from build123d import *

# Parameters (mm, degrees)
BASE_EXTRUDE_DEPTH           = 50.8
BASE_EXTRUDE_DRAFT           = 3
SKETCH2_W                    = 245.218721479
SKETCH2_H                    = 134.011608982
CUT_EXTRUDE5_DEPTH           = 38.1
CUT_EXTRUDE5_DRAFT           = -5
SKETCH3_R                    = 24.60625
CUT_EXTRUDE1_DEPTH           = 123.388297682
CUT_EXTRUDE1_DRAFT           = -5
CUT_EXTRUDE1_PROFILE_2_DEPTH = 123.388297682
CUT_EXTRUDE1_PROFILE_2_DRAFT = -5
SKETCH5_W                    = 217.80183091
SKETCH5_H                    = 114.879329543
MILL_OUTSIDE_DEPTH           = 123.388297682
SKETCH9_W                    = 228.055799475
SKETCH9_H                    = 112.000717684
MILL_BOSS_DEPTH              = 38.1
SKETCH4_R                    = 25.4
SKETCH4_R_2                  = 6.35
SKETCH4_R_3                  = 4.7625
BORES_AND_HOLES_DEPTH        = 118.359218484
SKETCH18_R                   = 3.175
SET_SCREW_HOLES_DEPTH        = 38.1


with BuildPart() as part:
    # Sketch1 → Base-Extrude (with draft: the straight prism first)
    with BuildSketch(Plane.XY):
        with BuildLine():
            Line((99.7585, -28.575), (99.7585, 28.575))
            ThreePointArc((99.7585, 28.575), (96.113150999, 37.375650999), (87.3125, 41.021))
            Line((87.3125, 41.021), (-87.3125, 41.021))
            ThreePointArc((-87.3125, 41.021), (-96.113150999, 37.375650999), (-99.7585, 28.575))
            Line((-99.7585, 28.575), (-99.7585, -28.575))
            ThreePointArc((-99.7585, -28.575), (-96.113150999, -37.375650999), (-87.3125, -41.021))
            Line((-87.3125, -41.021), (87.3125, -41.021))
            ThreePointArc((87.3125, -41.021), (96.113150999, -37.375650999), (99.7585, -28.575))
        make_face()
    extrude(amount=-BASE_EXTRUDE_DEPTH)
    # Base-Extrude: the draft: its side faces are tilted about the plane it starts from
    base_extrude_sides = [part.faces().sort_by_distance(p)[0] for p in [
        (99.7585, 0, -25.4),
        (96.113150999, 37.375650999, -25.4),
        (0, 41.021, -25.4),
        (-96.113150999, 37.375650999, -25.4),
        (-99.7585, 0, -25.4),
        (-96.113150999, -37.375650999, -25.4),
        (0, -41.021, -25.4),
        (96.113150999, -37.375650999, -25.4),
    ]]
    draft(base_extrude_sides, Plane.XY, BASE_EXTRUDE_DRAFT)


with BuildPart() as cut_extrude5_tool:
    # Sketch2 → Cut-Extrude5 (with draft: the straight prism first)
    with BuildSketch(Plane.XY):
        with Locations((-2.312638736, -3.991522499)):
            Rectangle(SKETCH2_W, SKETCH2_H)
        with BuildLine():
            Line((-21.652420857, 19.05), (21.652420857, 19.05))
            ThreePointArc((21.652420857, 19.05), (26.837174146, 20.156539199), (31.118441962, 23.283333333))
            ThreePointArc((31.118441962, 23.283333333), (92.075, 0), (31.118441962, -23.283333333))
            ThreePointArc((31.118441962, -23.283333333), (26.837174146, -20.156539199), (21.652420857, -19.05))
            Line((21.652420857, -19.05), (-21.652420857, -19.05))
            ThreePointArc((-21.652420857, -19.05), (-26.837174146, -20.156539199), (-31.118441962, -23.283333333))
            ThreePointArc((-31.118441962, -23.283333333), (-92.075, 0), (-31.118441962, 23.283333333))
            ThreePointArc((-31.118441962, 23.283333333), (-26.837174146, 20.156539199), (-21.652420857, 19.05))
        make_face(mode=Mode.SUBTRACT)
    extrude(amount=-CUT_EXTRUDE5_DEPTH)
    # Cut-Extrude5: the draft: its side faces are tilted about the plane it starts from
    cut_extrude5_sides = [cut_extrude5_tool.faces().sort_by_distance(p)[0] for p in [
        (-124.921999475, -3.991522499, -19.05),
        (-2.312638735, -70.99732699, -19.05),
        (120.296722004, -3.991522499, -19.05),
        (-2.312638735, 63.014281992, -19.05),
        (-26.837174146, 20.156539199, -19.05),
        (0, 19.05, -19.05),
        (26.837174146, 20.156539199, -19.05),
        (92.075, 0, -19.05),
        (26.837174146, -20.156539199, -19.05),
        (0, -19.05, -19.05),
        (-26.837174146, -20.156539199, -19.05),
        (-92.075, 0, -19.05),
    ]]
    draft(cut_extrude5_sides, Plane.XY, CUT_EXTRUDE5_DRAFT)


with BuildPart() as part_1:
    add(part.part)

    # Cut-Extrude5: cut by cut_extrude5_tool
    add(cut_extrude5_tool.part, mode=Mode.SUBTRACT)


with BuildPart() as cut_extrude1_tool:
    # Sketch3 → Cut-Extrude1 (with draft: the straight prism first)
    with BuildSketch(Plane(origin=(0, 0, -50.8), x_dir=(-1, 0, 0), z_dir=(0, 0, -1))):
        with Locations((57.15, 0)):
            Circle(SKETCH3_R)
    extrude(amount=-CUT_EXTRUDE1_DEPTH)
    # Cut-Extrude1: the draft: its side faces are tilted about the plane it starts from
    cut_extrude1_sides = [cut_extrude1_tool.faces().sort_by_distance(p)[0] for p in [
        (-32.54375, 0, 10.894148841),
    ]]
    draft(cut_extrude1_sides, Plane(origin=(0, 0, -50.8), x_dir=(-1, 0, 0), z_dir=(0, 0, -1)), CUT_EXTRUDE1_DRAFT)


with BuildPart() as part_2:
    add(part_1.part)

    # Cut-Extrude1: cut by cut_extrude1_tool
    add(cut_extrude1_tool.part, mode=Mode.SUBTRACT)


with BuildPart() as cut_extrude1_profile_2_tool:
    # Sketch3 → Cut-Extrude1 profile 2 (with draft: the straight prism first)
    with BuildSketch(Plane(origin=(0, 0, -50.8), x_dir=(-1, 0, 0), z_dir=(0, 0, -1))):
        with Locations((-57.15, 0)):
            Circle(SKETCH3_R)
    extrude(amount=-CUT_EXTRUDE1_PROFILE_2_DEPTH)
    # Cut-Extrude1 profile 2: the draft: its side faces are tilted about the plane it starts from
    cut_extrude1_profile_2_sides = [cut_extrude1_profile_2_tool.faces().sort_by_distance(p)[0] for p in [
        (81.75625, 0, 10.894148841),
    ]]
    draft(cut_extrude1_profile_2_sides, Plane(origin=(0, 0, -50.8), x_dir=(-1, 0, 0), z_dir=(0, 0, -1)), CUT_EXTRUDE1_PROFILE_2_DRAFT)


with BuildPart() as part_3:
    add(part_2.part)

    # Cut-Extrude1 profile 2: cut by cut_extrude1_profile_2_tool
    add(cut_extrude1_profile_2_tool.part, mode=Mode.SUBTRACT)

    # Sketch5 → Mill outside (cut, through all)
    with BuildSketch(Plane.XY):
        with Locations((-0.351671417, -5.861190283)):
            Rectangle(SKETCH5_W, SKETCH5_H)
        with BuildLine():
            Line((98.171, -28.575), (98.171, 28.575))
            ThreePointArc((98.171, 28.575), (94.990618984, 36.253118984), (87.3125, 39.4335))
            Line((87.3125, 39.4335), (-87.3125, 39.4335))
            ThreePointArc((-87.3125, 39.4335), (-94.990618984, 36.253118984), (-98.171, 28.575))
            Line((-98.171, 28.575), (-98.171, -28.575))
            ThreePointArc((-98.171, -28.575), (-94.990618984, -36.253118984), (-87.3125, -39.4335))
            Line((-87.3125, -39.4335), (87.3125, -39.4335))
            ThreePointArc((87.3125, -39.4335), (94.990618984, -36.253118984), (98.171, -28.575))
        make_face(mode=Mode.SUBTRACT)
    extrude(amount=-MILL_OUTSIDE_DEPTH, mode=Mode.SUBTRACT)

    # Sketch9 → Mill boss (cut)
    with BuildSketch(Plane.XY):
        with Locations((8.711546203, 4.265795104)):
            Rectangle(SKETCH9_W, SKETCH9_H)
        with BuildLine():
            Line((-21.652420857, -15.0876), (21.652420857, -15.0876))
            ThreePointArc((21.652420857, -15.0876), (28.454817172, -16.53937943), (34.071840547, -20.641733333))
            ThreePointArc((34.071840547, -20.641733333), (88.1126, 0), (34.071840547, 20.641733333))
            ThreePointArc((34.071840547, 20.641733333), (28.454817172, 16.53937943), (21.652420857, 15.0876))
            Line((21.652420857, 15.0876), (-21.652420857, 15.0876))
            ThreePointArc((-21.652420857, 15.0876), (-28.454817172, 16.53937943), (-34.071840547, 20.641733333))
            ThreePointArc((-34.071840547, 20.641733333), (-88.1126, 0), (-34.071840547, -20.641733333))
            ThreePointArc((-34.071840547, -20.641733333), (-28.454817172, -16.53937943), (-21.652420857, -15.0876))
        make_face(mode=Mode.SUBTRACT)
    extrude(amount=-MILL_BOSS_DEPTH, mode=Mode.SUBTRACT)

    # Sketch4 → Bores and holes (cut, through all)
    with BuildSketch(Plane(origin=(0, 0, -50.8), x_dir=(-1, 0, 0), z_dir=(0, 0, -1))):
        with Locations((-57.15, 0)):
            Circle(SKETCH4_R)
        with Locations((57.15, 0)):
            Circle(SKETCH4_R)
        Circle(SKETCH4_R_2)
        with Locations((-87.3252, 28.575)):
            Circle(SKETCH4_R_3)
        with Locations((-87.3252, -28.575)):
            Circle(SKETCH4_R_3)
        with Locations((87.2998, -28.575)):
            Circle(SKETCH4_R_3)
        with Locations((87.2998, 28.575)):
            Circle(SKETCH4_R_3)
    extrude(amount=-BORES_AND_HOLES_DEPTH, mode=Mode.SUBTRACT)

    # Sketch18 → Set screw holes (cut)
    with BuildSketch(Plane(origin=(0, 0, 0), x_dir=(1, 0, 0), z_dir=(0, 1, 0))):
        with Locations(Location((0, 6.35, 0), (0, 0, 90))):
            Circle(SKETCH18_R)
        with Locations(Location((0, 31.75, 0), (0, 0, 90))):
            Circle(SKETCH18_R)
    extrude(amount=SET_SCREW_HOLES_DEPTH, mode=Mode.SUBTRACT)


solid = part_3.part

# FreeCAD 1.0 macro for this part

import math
import FreeCAD as App
import Part
import Sketcher
Q = App.Units.Quantity


def faces_at(feature, points):
    """Names of the faces that lie closest to the given points."""
    faces = feature.Shape.Faces
    near = lambda p: min(range(len(faces)), key=lambda i: faces[i].distToShape(Part.Vertex(*p))[0])
    return sorted({f"Face{near(p) + 1}" for p in points})


def add_polygon(sketch, points):
    """Adds a closed chain of lines whose ends are joined by coincident constraints."""
    first, n = sketch.GeometryCount, len(points)
    for a, b in zip(points, points[1:] + points[:1]):
        sketch.addGeometry(Part.LineSegment(App.Vector(*a, 0), App.Vector(*b, 0)), False)
    for i in range(n):
        sketch.addConstraint(Sketcher.Constraint("Coincident", first + i, 2, first + (i + 1) % n, 1))

doc = App.newDocument("Part")
params = doc.addObject("Spreadsheet::Sheet", "Params")
for row, (alias, value) in enumerate([
    ("sketch1_radius", "0.49 in"),
    ("sketch1_height", "2.25 in"),
    ("sketch1_width", "6.875 in"),
    ("pad1_length", "2 in"),
    ("draft_angle", "3 deg"),
    ("sketch2_radius", "0.5 in"),
    ("sketch2_radius2", "1.375 in"),
    ("pad2_length", "1.5 in"),
    ("draft2_angle", "5 deg"),
    ("sketch3_diameter", "1.9375 in"),
    ("pad3_length", "123.388298 mm"),
    ("draft3_angle", "5 deg"),
    ("sketch4_diameter", "1.9375 in"),
    ("pad4_length", "123.388298 mm"),
    ("draft4_angle", "5 deg"),
    ("sketch5_height", "2.25 in"),
    ("sketch5_width", "6.875 in"),
    ("sketch6_radius", "0.656 in"),
    ("sketch6_radius2", "1.219 in"),
    ("pocket2_length", "1.5 in"),
    ("sketch7_diameter", "2 in"),
    ("sketch7_diameter2", "0.5 in"),
    ("sketch7_diameter3", "0.375 in"),
    ("sketch8_diameter", "0.25 in"),
    ("pocket4_length", "1.5 in"),
], start=1):
    params.set(f"A{row}", alias)
    params.set(f"B{row}", "=" + value)
    params.setAlias(f"B{row}", alias)

body = doc.addObject("PartDesign::Body", "Body")

sketch1 = body.newObject("Sketcher::SketchObject", "Sketch")
sketch1.AttachmentSupport = (doc.getObject("XY_Plane"), [""])
sketch1.MapMode = "FlatFace"
sketch1.addGeometry([
    Part.LineSegment(App.Vector(100, -29, 0), App.Vector(100, 29, 0)),
    Part.ArcOfCircle(Part.Circle(App.Vector(87, 29, 0), App.Vector(0, 0, 1), 12), math.radians(0), math.radians(90)),
    Part.LineSegment(App.Vector(87, 41, 0), App.Vector(-87, 41, 0)),
    Part.ArcOfCircle(Part.Circle(App.Vector(-87, 29, 0), App.Vector(0, 0, 1), 12), math.radians(90), math.radians(180)),
    Part.LineSegment(App.Vector(-100, 29, 0), App.Vector(-100, -29, 0)),
    Part.ArcOfCircle(Part.Circle(App.Vector(-87, -29, 0), App.Vector(0, 0, 1), 12), math.radians(180), math.radians(270)),
    Part.LineSegment(App.Vector(-87, -41, 0), App.Vector(87, -41, 0)),
    Part.ArcOfCircle(Part.Circle(App.Vector(87, -29, 0), App.Vector(0, 0, 1), 12), math.radians(-90), math.radians(0)),
], False)
sketch1.addConstraint([
    Sketcher.Constraint("Tangent", 0, 2, 1, 1),
    Sketcher.Constraint("Tangent", 1, 2, 2, 1),
    Sketcher.Constraint("Tangent", 2, 2, 3, 1),
    Sketcher.Constraint("Tangent", 3, 2, 4, 1),
    Sketcher.Constraint("Tangent", 4, 2, 5, 1),
    Sketcher.Constraint("Tangent", 5, 2, 6, 1),
    Sketcher.Constraint("Tangent", 6, 2, 7, 1),
    Sketcher.Constraint("Tangent", 7, 2, 0, 1),
    Sketcher.Constraint("Vertical", 0),
    Sketcher.Constraint("Horizontal", 2),
    Sketcher.Constraint("Vertical", 4),
    Sketcher.Constraint("Horizontal", 6),
    Sketcher.Constraint("Equal", 1, 3),
    Sketcher.Constraint("Equal", 3, 5),
    Sketcher.Constraint("Equal", 5, 7),
    Sketcher.Constraint("Symmetric", 1, 3, 5, 3, -1, 1),
    Sketcher.Constraint("Radius", 1, Q("0.49 in")),
    Sketcher.Constraint("DistanceY", 0, 1, 0, 2, Q("2.25 in")),
    Sketcher.Constraint("DistanceX", 2, 2, 2, 1, Q("6.875 in")),
])
sketch1.setExpression("Constraints[16]", "Params.sketch1_radius")
sketch1.setExpression("Constraints[17]", "Params.sketch1_height")
sketch1.setExpression("Constraints[18]", "Params.sketch1_width")
pad1 = body.newObject("PartDesign::Pad", "Pad")
pad1.Profile = sketch1
pad1.setExpression("Length", "Params.pad1_length")
pad1.Reversed = True
doc.recompute()

draft = body.newObject("PartDesign::Draft", "Draft")
draft.Base = (pad1, faces_at(pad1, [
    (99.758, 0, -25.4),
    (96.113, 37.376, -25.4),
    (0, 41.021, -25.4),
    (-96.113, 37.376, -25.4),
    (-99.758, 0, -25.4),
    (-96.113, -37.376, -25.4),
    (0, -41.021, -25.4),
    (96.113, -37.376, -25.4),
]))
draft.NeutralPlane = (doc.getObject("XY_Plane"), [""])
draft.setExpression("Angle", "Params.draft_angle")
draft.Reversed = False
body2 = doc.addObject("PartDesign::Body", "Body001")

sketch2 = body2.newObject("Sketcher::SketchObject", "Sketch001")
sketch2.AttachmentSupport = (doc.getObject("XY_Plane001"), [""])
sketch2.MapMode = "FlatFace"
add_polygon(sketch2, [(-125, 63), (-125, -71), (120, -71), (120, 63)])
sketch2.addGeometry(Part.ArcOfCircle(Part.Circle(App.Vector(-22, 32, 0), App.Vector(0, 0, 1), 13), math.radians(-138), math.radians(-90)), False)
sketch2.addGeometry(Part.LineSegment(App.Vector(-22, 19, 0), App.Vector(22, 19, 0)), False)
sketch2.addGeometry(Part.ArcOfCircle(Part.Circle(App.Vector(22, 32, 0), App.Vector(0, 0, 1), 13), math.radians(-90), math.radians(-42)), False)
sketch2.addGeometry(Part.ArcOfCircle(Part.Circle(App.Vector(57, 0, 0), App.Vector(0, 0, 1), 35), math.radians(-138), math.radians(138)), False)
sketch2.addGeometry(Part.ArcOfCircle(Part.Circle(App.Vector(22, -32, 0), App.Vector(0, 0, 1), 13), math.radians(42), math.radians(90)), False)
sketch2.addGeometry(Part.LineSegment(App.Vector(22, -19, 0), App.Vector(-22, -19, 0)), False)
sketch2.addGeometry(Part.ArcOfCircle(Part.Circle(App.Vector(-22, -32, 0), App.Vector(0, 0, 1), 13), math.radians(90), math.radians(138)), False)
sketch2.addGeometry(Part.ArcOfCircle(Part.Circle(App.Vector(-57, 0, 0), App.Vector(0, 0, 1), 35), math.radians(42), math.radians(318)), False)
sketch2.addConstraint([
    Sketcher.Constraint("Tangent", 4, 2, 5, 1),
    Sketcher.Constraint("Tangent", 5, 2, 6, 1),
    Sketcher.Constraint("Tangent", 6, 2, 7, 2),
    Sketcher.Constraint("Tangent", 7, 1, 8, 1),
    Sketcher.Constraint("Tangent", 8, 2, 9, 1),
    Sketcher.Constraint("Tangent", 9, 2, 10, 1),
    Sketcher.Constraint("Tangent", 10, 2, 11, 2),
    Sketcher.Constraint("Tangent", 11, 1, 4, 1),
    Sketcher.Constraint("Vertical", 0),
    Sketcher.Constraint("Horizontal", 1),
    Sketcher.Constraint("Vertical", 2),
    Sketcher.Constraint("Horizontal", 3),
    Sketcher.Constraint("Horizontal", 5),
    Sketcher.Constraint("Horizontal", 9),
    Sketcher.Constraint("Equal", 4, 6),
    Sketcher.Constraint("Equal", 6, 8),
    Sketcher.Constraint("Equal", 8, 10),
    Sketcher.Constraint("Equal", 7, 11),
    Sketcher.Constraint("Symmetric", 4, 3, 8, 3, -1, 1),
    Sketcher.Constraint("Symmetric", 7, 3, 11, 3, -2),
    Sketcher.Constraint("Radius", 4, Q("0.5 in")),
    Sketcher.Constraint("Radius", 7, Q("1.375 in")),
    Sketcher.Constraint("DistanceY", 10, 3, 4, 2, Q("2 in")),
    Sketcher.Constraint("DistanceX", 11, 3, 7, 3, Q("4.5 in")),
    Sketcher.Constraint("DistanceX", 1, 1, 1, 2, Q("245.218721 mm")),
    Sketcher.Constraint("DistanceY", 0, 2, 0, 1, Q("134.011609 mm")),
    Sketcher.Constraint("DistanceX", 0, 2, -1, 1, Q("124.921999 mm")),
    Sketcher.Constraint("DistanceY", -1, 1, 2, 2, Q("63.014282 mm")),
])
sketch2.setExpression("Constraints[24]", "Params.sketch2_radius")
sketch2.setExpression("Constraints[25]", "Params.sketch2_radius2")
pad2 = body2.newObject("PartDesign::Pad", "Pad001")
pad2.Profile = sketch2
pad2.setExpression("Length", "Params.pad2_length")
pad2.Reversed = True
doc.recompute()

draft2 = body2.newObject("PartDesign::Draft", "Draft001")
draft2.Base = (pad2, faces_at(pad2, [
    (-124.922, -3.992, -19.05),
    (-2.313, -70.997, -19.05),
    (120.297, -3.992, -19.05),
    (-2.313, 63.014, -19.05),
    (-26.837, 20.157, -19.05),
    (0, 19.05, -19.05),
    (26.837, 20.157, -19.05),
    (92.075, 0, -19.05),
    (26.837, -20.157, -19.05),
    (0, -19.05, -19.05),
    (-26.837, -20.157, -19.05),
    (-92.075, 0, -19.05),
]))
draft2.NeutralPlane = (doc.getObject("XY_Plane001"), [""])
draft2.setExpression("Angle", "Params.draft2_angle")
draft2.Reversed = True
doc.recompute()

boolean = body.newObject("PartDesign::Boolean", "Boolean")
boolean.Type = "Cut"
boolean.addObjects([body2])
body3 = doc.addObject("PartDesign::Body", "Body002")

sketch3 = body3.newObject("Sketcher::SketchObject", "Sketch002")
sketch3.AttachmentSupport = (doc.getObject("XY_Plane002"), [""])
sketch3.MapMode = "FlatFace"
sketch3.AttachmentOffset = App.Placement(App.Vector(0, 0, -2 * 25.4), App.Rotation())
sketch3.addGeometry(Part.Circle(App.Vector(-57, 0, 0), App.Vector(0, 0, 1), 25), False)
sketch3.addConstraint([
    Sketcher.Constraint("PointOnObject", 0, 3, -1),
    Sketcher.Constraint("Diameter", 0, Q("1.9375 in")),
    Sketcher.Constraint("DistanceX", 0, 3, -1, 1, Q("2.25 in")),
])
sketch3.setExpression("Constraints[1]", "Params.sketch3_diameter")
pad3 = body3.newObject("PartDesign::Pad", "Pad002")
pad3.Profile = sketch3
pad3.setExpression("Length", "Params.pad3_length")
doc.recompute()

datumplane = body3.newObject("PartDesign::Plane", "DatumPlane")
datumplane.AttachmentSupport = (doc.getObject("XY_Plane002"), [""])
datumplane.MapMode = "FlatFace"
datumplane.AttachmentOffset = App.Placement(App.Vector(0, 0, -2 * 25.4), App.Rotation())
draft3 = body3.newObject("PartDesign::Draft", "Draft002")
draft3.Base = (pad3, faces_at(pad3, [(-32.544, 0, 10.894)]))
draft3.NeutralPlane = (datumplane, [""])
draft3.setExpression("Angle", "Params.draft3_angle")
draft3.Reversed = False
doc.recompute()

boolean2 = body.newObject("PartDesign::Boolean", "Boolean001")
boolean2.Type = "Cut"
boolean2.addObjects([body3])
body4 = doc.addObject("PartDesign::Body", "Body003")

sketch4 = body4.newObject("Sketcher::SketchObject", "Sketch003")
sketch4.AttachmentSupport = (doc.getObject("XY_Plane003"), [""])
sketch4.MapMode = "FlatFace"
sketch4.AttachmentOffset = App.Placement(App.Vector(0, 0, -2 * 25.4), App.Rotation())
sketch4.addGeometry(Part.Circle(App.Vector(57, 0, 0), App.Vector(0, 0, 1), 25), False)
sketch4.addConstraint([
    Sketcher.Constraint("PointOnObject", 0, 3, -1),
    Sketcher.Constraint("Diameter", 0, Q("1.9375 in")),
    Sketcher.Constraint("DistanceX", -1, 1, 0, 3, Q("2.25 in")),
])
sketch4.setExpression("Constraints[1]", "Params.sketch4_diameter")
pad4 = body4.newObject("PartDesign::Pad", "Pad003")
pad4.Profile = sketch4
pad4.setExpression("Length", "Params.pad4_length")
doc.recompute()

datumplane2 = body4.newObject("PartDesign::Plane", "DatumPlane001")
datumplane2.AttachmentSupport = (doc.getObject("XY_Plane003"), [""])
datumplane2.MapMode = "FlatFace"
datumplane2.AttachmentOffset = App.Placement(App.Vector(0, 0, -2 * 25.4), App.Rotation())
draft4 = body4.newObject("PartDesign::Draft", "Draft003")
draft4.Base = (pad4, faces_at(pad4, [(81.756, 0, 10.894)]))
draft4.NeutralPlane = (datumplane2, [""])
draft4.setExpression("Angle", "Params.draft4_angle")
draft4.Reversed = False
doc.recompute()

boolean3 = body.newObject("PartDesign::Boolean", "Boolean002")
boolean3.Type = "Cut"
boolean3.addObjects([body4])

sketch5 = body.newObject("Sketcher::SketchObject", "Sketch004")
sketch5.AttachmentSupport = (doc.getObject("XY_Plane"), [""])
sketch5.MapMode = "FlatFace"
add_polygon(sketch5, [(-109, 52), (-109, -63), (109, -63), (109, 52)])
sketch5.addGeometry(Part.LineSegment(App.Vector(98, 29, 0), App.Vector(98, -29, 0)), False)
sketch5.addGeometry(Part.ArcOfCircle(Part.Circle(App.Vector(87, -29, 0), App.Vector(0, 0, 1), 11), math.radians(-90), math.radians(0)), False)
sketch5.addGeometry(Part.LineSegment(App.Vector(87, -39, 0), App.Vector(-87, -39, 0)), False)
sketch5.addGeometry(Part.ArcOfCircle(Part.Circle(App.Vector(-87, -29, 0), App.Vector(0, 0, 1), 11), math.radians(180), math.radians(270)), False)
sketch5.addGeometry(Part.LineSegment(App.Vector(-98, -29, 0), App.Vector(-98, 29, 0)), False)
sketch5.addGeometry(Part.ArcOfCircle(Part.Circle(App.Vector(-87, 29, 0), App.Vector(0, 0, 1), 11), math.radians(90), math.radians(180)), False)
sketch5.addGeometry(Part.LineSegment(App.Vector(-87, 39, 0), App.Vector(87, 39, 0)), False)
sketch5.addGeometry(Part.ArcOfCircle(Part.Circle(App.Vector(87, 29, 0), App.Vector(0, 0, 1), 11), math.radians(0), math.radians(90)), False)
sketch5.addConstraint([
    Sketcher.Constraint("Tangent", 4, 2, 5, 2),
    Sketcher.Constraint("Tangent", 5, 1, 6, 1),
    Sketcher.Constraint("Tangent", 6, 2, 7, 2),
    Sketcher.Constraint("Tangent", 7, 1, 8, 1),
    Sketcher.Constraint("Tangent", 8, 2, 9, 2),
    Sketcher.Constraint("Tangent", 9, 1, 10, 1),
    Sketcher.Constraint("Tangent", 10, 2, 11, 2),
    Sketcher.Constraint("Tangent", 11, 1, 4, 1),
    Sketcher.Constraint("Vertical", 0),
    Sketcher.Constraint("Horizontal", 1),
    Sketcher.Constraint("Vertical", 2),
    Sketcher.Constraint("Horizontal", 3),
    Sketcher.Constraint("Vertical", 4),
    Sketcher.Constraint("Horizontal", 6),
    Sketcher.Constraint("Vertical", 8),
    Sketcher.Constraint("Horizontal", 10),
    Sketcher.Constraint("Equal", 5, 7),
    Sketcher.Constraint("Equal", 7, 9),
    Sketcher.Constraint("Equal", 9, 11),
    Sketcher.Constraint("Symmetric", 5, 3, 9, 3, -1, 1),
    Sketcher.Constraint("DistanceY", 4, 2, 4, 1, Q("2.25 in")),
    Sketcher.Constraint("Radius", 5, Q("0.4275 in")),
    Sketcher.Constraint("DistanceX", 6, 2, 6, 1, Q("6.875 in")),
    Sketcher.Constraint("DistanceX", 1, 1, 1, 2, Q("217.801831 mm")),
    Sketcher.Constraint("DistanceY", 0, 2, 0, 1, Q("114.87933 mm")),
    Sketcher.Constraint("DistanceX", 0, 2, -1, 1, Q("109.252587 mm")),
    Sketcher.Constraint("DistanceY", 0, 2, -1, 1, Q("63.300855 mm")),
])
sketch5.setExpression("Constraints[24]", "Params.sketch5_height")
sketch5.setExpression("Constraints[26]", "Params.sketch5_width")
pocket1 = body.newObject("PartDesign::Pocket", "Pocket")
pocket1.Profile = sketch5
pocket1.Type = "ThroughAll"

sketch6 = body.newObject("Sketcher::SketchObject", "Sketch005")
sketch6.AttachmentSupport = (doc.getObject("XY_Plane"), [""])
sketch6.MapMode = "FlatFace"
add_polygon(sketch6, [(-105, 60), (-105, -52), (123, -52), (123, 60)])
sketch6.addGeometry(Part.LineSegment(App.Vector(22, -15, 0), App.Vector(-22, -15, 0)), False)
sketch6.addGeometry(Part.ArcOfCircle(Part.Circle(App.Vector(-22, -32, 0), App.Vector(0, 0, 1), 17), math.radians(90), math.radians(138)), False)
sketch6.addGeometry(Part.ArcOfCircle(Part.Circle(App.Vector(-57, 0, 0), App.Vector(0, 0, 1), 31), math.radians(42), math.radians(318)), False)
sketch6.addGeometry(Part.ArcOfCircle(Part.Circle(App.Vector(-22, 32, 0), App.Vector(0, 0, 1), 17), math.radians(-138), math.radians(-90)), False)
sketch6.addGeometry(Part.LineSegment(App.Vector(-22, 15, 0), App.Vector(22, 15, 0)), False)
sketch6.addGeometry(Part.ArcOfCircle(Part.Circle(App.Vector(22, 32, 0), App.Vector(0, 0, 1), 17), math.radians(-90), math.radians(-42)), False)
sketch6.addGeometry(Part.ArcOfCircle(Part.Circle(App.Vector(57, 0, 0), App.Vector(0, 0, 1), 31), math.radians(-138), math.radians(138)), False)
sketch6.addGeometry(Part.ArcOfCircle(Part.Circle(App.Vector(22, -32, 0), App.Vector(0, 0, 1), 17), math.radians(42), math.radians(90)), False)
sketch6.addConstraint([
    Sketcher.Constraint("Tangent", 4, 2, 5, 1),
    Sketcher.Constraint("Tangent", 5, 2, 6, 2),
    Sketcher.Constraint("Tangent", 6, 1, 7, 1),
    Sketcher.Constraint("Tangent", 7, 2, 8, 1),
    Sketcher.Constraint("Tangent", 8, 2, 9, 1),
    Sketcher.Constraint("Tangent", 9, 2, 10, 2),
    Sketcher.Constraint("Tangent", 10, 1, 11, 1),
    Sketcher.Constraint("Tangent", 11, 2, 4, 1),
    Sketcher.Constraint("Vertical", 0),
    Sketcher.Constraint("Horizontal", 1),
    Sketcher.Constraint("Vertical", 2),
    Sketcher.Constraint("Horizontal", 3),
    Sketcher.Constraint("Horizontal", 4),
    Sketcher.Constraint("Horizontal", 8),
    Sketcher.Constraint("Equal", 5, 7),
    Sketcher.Constraint("Equal", 7, 9),
    Sketcher.Constraint("Equal", 6, 10),
    Sketcher.Constraint("Equal", 9, 11),
    Sketcher.Constraint("Symmetric", 5, 3, 9, 3, -1, 1),
    Sketcher.Constraint("Symmetric", 6, 3, 10, 3, -2),
    Sketcher.Constraint("Radius", 5, Q("0.656 in")),
    Sketcher.Constraint("Radius", 6, Q("1.219 in")),
    Sketcher.Constraint("DistanceY", 5, 3, 7, 3, Q("2.5 in")),
    Sketcher.Constraint("DistanceX", 6, 3, 10, 3, Q("4.5 in")),
    Sketcher.Constraint("DistanceX", 1, 1, 1, 2, Q("228.055799 mm")),
    Sketcher.Constraint("DistanceY", 0, 2, 0, 1, Q("112.000718 mm")),
    Sketcher.Constraint("DistanceX", 0, 2, -1, 1, Q("105.316354 mm")),
    Sketcher.Constraint("DistanceY", 0, 2, -1, 1, Q("51.734564 mm")),
])
sketch6.setExpression("Constraints[24]", "Params.sketch6_radius")
sketch6.setExpression("Constraints[25]", "Params.sketch6_radius2")
pocket2 = body.newObject("PartDesign::Pocket", "Pocket001")
pocket2.Profile = sketch6
pocket2.setExpression("Length", "Params.pocket2_length")

sketch7 = body.newObject("Sketcher::SketchObject", "Sketch006")
sketch7.AttachmentSupport = (doc.getObject("XY_Plane"), [""])
sketch7.MapMode = "FlatFace"
sketch7.AttachmentOffset = App.Placement(App.Vector(0, 0, -2 * 25.4), App.Rotation())
sketch7.addGeometry([
    Part.Circle(App.Vector(57.1, 0, 0), App.Vector(0, 0, 1), 25.4),
    Part.Circle(App.Vector(-57.1, 0, 0), App.Vector(0, 0, 1), 25.4),
    Part.Circle(App.Vector(0, 0, 0), App.Vector(0, 0, 1), 6.3),
    Part.Circle(App.Vector(87.3, 28.6, 0), App.Vector(0, 0, 1), 4.8),
    Part.Circle(App.Vector(87.3, -28.6, 0), App.Vector(0, 0, 1), 4.8),
    Part.Circle(App.Vector(-87.3, -28.6, 0), App.Vector(0, 0, 1), 4.8),
    Part.Circle(App.Vector(-87.3, 28.6, 0), App.Vector(0, 0, 1), 4.8),
], False)
sketch7.addConstraint([
    Sketcher.Constraint("Coincident", 2, 3, -1, 1),
    Sketcher.Constraint("Equal", 0, 1),
    Sketcher.Constraint("Equal", 3, 4),
    Sketcher.Constraint("Equal", 4, 5),
    Sketcher.Constraint("Equal", 5, 6),
    Sketcher.Constraint("Symmetric", 0, 3, 1, 3, -1, 1),
    Sketcher.Constraint("Symmetric", 3, 3, 4, 3, -1),
    Sketcher.Constraint("Symmetric", 5, 3, 6, 3, -1),
    Sketcher.Constraint("PointOnObject", 0, 3, -1),
    Sketcher.Constraint("Horizontal", 4, 3, 5, 3),
    Sketcher.Constraint("Diameter", 0, Q("2 in")),
    Sketcher.Constraint("Diameter", 2, Q("0.5 in")),
    Sketcher.Constraint("Diameter", 3, Q("0.375 in")),
    Sketcher.Constraint("DistanceX", 1, 3, 0, 3, Q("4.5 in")),
    Sketcher.Constraint("DistanceY", 4, 3, 3, 3, Q("2.25 in")),
    Sketcher.Constraint("DistanceX", -1, 1, 3, 3, Q("3.438 in")),
    Sketcher.Constraint("DistanceX", 5, 3, -1, 1, Q("3.437 in")),
])
sketch7.setExpression("Constraints[10]", "Params.sketch7_diameter")
sketch7.setExpression("Constraints[11]", "Params.sketch7_diameter2")
sketch7.setExpression("Constraints[12]", "Params.sketch7_diameter3")
pocket3 = body.newObject("PartDesign::Pocket", "Pocket002")
pocket3.Profile = sketch7
pocket3.Type = "ThroughAll"
pocket3.Reversed = True

sketch8 = body.newObject("Sketcher::SketchObject", "Sketch007")
sketch8.AttachmentSupport = (doc.getObject("XZ_Plane"), [""])
sketch8.MapMode = "FlatFace"
sketch8.addGeometry([
    Part.Circle(App.Vector(0, -6.3, 0), App.Vector(0, 0, 1), 3.2),
    Part.Circle(App.Vector(0, -31.8, 0), App.Vector(0, 0, 1), 3.2),
], False)
sketch8.addConstraint([
    Sketcher.Constraint("Equal", 0, 1),
    Sketcher.Constraint("PointOnObject", 0, 3, -2),
    Sketcher.Constraint("PointOnObject", 1, 3, -2),
    Sketcher.Constraint("Diameter", 0, Q("0.25 in")),
    Sketcher.Constraint("DistanceY", 1, 3, 0, 3, Q("1 in")),
    Sketcher.Constraint("DistanceY", 0, 3, -1, 1, Q("0.25 in")),
])
sketch8.setExpression("Constraints[3]", "Params.sketch8_diameter")
pocket4 = body.newObject("PartDesign::Pocket", "Pocket003")
pocket4.Profile = sketch8
pocket4.setExpression("Length", "Params.pocket4_length")

doc.recompute()
